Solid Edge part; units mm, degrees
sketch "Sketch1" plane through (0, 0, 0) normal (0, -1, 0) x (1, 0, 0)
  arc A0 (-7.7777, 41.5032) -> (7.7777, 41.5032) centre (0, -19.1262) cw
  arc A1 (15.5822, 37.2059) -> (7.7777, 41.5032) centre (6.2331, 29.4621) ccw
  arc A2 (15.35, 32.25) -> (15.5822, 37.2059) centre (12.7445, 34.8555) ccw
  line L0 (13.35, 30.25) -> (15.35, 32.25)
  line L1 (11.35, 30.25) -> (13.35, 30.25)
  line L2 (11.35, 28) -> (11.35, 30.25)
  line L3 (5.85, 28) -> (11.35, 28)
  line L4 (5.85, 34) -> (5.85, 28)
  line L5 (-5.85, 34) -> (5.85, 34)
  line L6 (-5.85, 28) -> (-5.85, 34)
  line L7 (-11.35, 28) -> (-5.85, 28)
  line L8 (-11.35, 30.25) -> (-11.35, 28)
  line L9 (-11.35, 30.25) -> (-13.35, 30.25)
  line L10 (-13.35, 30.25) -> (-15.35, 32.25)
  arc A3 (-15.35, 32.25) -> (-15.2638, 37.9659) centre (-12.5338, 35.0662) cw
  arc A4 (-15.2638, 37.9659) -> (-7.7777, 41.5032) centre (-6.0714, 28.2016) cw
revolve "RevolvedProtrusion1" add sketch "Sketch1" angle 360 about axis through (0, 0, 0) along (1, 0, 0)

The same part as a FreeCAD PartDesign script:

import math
import FreeCAD as App
import Part
import Sketcher
from FreeCAD import Vector
Q = App.Units.Quantity

doc = App.newDocument("Part")
body = doc.addObject("PartDesign::Body", "Body")

sketch1 = body.newObject("Sketcher::SketchObject", "Sketch")
sketch1.AttachmentSupport = (doc.getObject("XZ_Plane"), [""])
sketch1.MapMode = "FlatFace"
sketch1.addGeometry(Part.ArcOfCircle(Part.Circle(Vector(0, -19.1, 0), Vector(0, 0, 1), 61.1), math.radians(82.69), math.radians(97.31)), False)
sketch1.addGeometry(Part.ArcOfCircle(Part.Circle(Vector(-6.1, 28.2, 0), Vector(0, 0, 1), 13.4), math.radians(97), math.radians(133)), False)
sketch1.addGeometry(Part.ArcOfCircle(Part.Circle(Vector(-12.5, 35.1, 0), Vector(0, 0, 1), 4), math.radians(133), math.radians(225)), False)
sketch1.addGeometry(Part.LineSegment(Vector(-15.3, 32.2, 0), Vector(-13.3, 30.2, 0)), False)
sketch1.addGeometry(Part.LineSegment(Vector(-13.3, 30.2, 0), Vector(-11.3, 30.2, 0)), False)
sketch1.addGeometry(Part.LineSegment(Vector(-11.3, 30.2, 0), Vector(-11.3, 28, 0)), False)
sketch1.addGeometry(Part.LineSegment(Vector(-11.3, 28, 0), Vector(-5.8, 28, 0)), False)
sketch1.addGeometry(Part.LineSegment(Vector(-5.8, 28, 0), Vector(-5.8, 34, 0)), False)
sketch1.addGeometry(Part.LineSegment(Vector(-5.8, 34, 0), Vector(5.8, 34, 0)), False)
sketch1.addGeometry(Part.LineSegment(Vector(5.8, 34, 0), Vector(5.8, 28, 0)), False)
sketch1.addGeometry(Part.LineSegment(Vector(5.8, 28, 0), Vector(11.3, 28, 0)), False)
sketch1.addGeometry(Part.LineSegment(Vector(11.3, 28, 0), Vector(11.3, 30.2, 0)), False)
sketch1.addGeometry(Part.LineSegment(Vector(11.3, 30.2, 0), Vector(13.3, 30.2, 0)), False)
sketch1.addGeometry(Part.LineSegment(Vector(13.3, 30.2, 0), Vector(15.3, 32.2, 0)), False)
sketch1.addGeometry(Part.ArcOfCircle(Part.Circle(Vector(12.7, 34.9, 0), Vector(0, 0, 1), 3.7), math.radians(-45), math.radians(40)), False)
sketch1.addGeometry(Part.ArcOfCircle(Part.Circle(Vector(6.2, 29.5, 0), Vector(0, 0, 1), 12.1), math.radians(40), math.radians(83)), False)
sketch1.addConstraint(Sketcher.Constraint("Tangent", 0, 2, 1, 1))
sketch1.addConstraint(Sketcher.Constraint("Tangent", 1, 2, 2, 1))
sketch1.addConstraint(Sketcher.Constraint("Tangent", 2, 2, 3, 1))
sketch1.addConstraint(Sketcher.Constraint("Coincident", 3, 2, 4, 1))
sketch1.addConstraint(Sketcher.Constraint("Coincident", 4, 2, 5, 1))
sketch1.addConstraint(Sketcher.Constraint("Coincident", 5, 2, 6, 1))
sketch1.addConstraint(Sketcher.Constraint("Coincident", 6, 2, 7, 1))
sketch1.addConstraint(Sketcher.Constraint("Coincident", 7, 2, 8, 1))
sketch1.addConstraint(Sketcher.Constraint("Coincident", 8, 2, 9, 1))
sketch1.addConstraint(Sketcher.Constraint("Coincident", 9, 2, 10, 1))
sketch1.addConstraint(Sketcher.Constraint("Coincident", 10, 2, 11, 1))
sketch1.addConstraint(Sketcher.Constraint("Coincident", 11, 2, 12, 1))
sketch1.addConstraint(Sketcher.Constraint("Coincident", 12, 2, 13, 1))
sketch1.addConstraint(Sketcher.Constraint("Tangent", 13, 2, 14, 1))
sketch1.addConstraint(Sketcher.Constraint("Tangent", 14, 2, 15, 1))
sketch1.addConstraint(Sketcher.Constraint("Tangent", 15, 2, 0, 1))
sketch1.addConstraint(Sketcher.Constraint("Horizontal", 4))
sketch1.addConstraint(Sketcher.Constraint("Vertical", 5))
sketch1.addConstraint(Sketcher.Constraint("Horizontal", 6))
sketch1.addConstraint(Sketcher.Constraint("Vertical", 7))
sketch1.addConstraint(Sketcher.Constraint("Horizontal", 8))
sketch1.addConstraint(Sketcher.Constraint("Vertical", 9))
sketch1.addConstraint(Sketcher.Constraint("Horizontal", 10))
sketch1.addConstraint(Sketcher.Constraint("Vertical", 11))
sketch1.addConstraint(Sketcher.Constraint("Horizontal", 12))
sketch1.addConstraint(Sketcher.Constraint("Symmetric", 6, 2, 9, 2, -2))
sketch1.addConstraint(Sketcher.Constraint("Symmetric", 4, 2, 11, 2, -2))
sketch1.addConstraint(Sketcher.Constraint("Symmetric", 2, 2, 13, 2, -2))
sketch1.addConstraint(Sketcher.Constraint("Symmetric", 0, 2, 15, 2, -2))
sketch1.addConstraint(Sketcher.Constraint("Perpendicular", 3, 13))
sketch1.addConstraint(Sketcher.Constraint("Equal", 4, 12))
sketch1.addConstraint(Sketcher.Constraint("DistanceX", 4, 1, 4, 2, Q("2 mm")))
sketch1.addConstraint(Sketcher.Constraint("DistanceY", 7, 1, 7, 2, Q("6 mm")))
sketch1.addConstraint(Sketcher.Constraint("DistanceX", 6, 1, 6, 2, Q("5.5 mm")))
sketch1.addConstraint(Sketcher.Constraint("DistanceX", 8, 1, 8, 2, Q("11.7 mm")))
sketch1.addConstraint(Sketcher.Constraint("DistanceY", -1, 1, 5, 2, Q("28 mm")))
sketch1.addConstraint(Sketcher.Constraint("DistanceX", 2, 2, 3, 2, Q("2 mm")))
sketch1.addConstraint(Sketcher.Constraint("DistanceY", 5, 2, 5, 1, Q("2.25 mm")))
sketch1.addConstraint(Sketcher.Constraint("Radius", 0, Q("61.1262 mm")))
sketch1.addConstraint(Sketcher.Constraint("Radius", 1, Q("13.4105 mm")))
sketch1.addConstraint(Sketcher.Constraint("Radius", 2, Q("3.9827 mm")))
sketch1.addConstraint(Sketcher.Constraint("Radius", 14, Q("3.6847 mm")))
sketch1.addConstraint(Sketcher.Constraint("Radius", 15, Q("12.1397 mm")))
revolution = body.newObject("PartDesign::Revolution", "Revolution")
revolution.Profile = sketch1
revolution.ReferenceAxis = (sketch1, ["H_Axis"])
revolution.Angle = 360

doc.recompute()
